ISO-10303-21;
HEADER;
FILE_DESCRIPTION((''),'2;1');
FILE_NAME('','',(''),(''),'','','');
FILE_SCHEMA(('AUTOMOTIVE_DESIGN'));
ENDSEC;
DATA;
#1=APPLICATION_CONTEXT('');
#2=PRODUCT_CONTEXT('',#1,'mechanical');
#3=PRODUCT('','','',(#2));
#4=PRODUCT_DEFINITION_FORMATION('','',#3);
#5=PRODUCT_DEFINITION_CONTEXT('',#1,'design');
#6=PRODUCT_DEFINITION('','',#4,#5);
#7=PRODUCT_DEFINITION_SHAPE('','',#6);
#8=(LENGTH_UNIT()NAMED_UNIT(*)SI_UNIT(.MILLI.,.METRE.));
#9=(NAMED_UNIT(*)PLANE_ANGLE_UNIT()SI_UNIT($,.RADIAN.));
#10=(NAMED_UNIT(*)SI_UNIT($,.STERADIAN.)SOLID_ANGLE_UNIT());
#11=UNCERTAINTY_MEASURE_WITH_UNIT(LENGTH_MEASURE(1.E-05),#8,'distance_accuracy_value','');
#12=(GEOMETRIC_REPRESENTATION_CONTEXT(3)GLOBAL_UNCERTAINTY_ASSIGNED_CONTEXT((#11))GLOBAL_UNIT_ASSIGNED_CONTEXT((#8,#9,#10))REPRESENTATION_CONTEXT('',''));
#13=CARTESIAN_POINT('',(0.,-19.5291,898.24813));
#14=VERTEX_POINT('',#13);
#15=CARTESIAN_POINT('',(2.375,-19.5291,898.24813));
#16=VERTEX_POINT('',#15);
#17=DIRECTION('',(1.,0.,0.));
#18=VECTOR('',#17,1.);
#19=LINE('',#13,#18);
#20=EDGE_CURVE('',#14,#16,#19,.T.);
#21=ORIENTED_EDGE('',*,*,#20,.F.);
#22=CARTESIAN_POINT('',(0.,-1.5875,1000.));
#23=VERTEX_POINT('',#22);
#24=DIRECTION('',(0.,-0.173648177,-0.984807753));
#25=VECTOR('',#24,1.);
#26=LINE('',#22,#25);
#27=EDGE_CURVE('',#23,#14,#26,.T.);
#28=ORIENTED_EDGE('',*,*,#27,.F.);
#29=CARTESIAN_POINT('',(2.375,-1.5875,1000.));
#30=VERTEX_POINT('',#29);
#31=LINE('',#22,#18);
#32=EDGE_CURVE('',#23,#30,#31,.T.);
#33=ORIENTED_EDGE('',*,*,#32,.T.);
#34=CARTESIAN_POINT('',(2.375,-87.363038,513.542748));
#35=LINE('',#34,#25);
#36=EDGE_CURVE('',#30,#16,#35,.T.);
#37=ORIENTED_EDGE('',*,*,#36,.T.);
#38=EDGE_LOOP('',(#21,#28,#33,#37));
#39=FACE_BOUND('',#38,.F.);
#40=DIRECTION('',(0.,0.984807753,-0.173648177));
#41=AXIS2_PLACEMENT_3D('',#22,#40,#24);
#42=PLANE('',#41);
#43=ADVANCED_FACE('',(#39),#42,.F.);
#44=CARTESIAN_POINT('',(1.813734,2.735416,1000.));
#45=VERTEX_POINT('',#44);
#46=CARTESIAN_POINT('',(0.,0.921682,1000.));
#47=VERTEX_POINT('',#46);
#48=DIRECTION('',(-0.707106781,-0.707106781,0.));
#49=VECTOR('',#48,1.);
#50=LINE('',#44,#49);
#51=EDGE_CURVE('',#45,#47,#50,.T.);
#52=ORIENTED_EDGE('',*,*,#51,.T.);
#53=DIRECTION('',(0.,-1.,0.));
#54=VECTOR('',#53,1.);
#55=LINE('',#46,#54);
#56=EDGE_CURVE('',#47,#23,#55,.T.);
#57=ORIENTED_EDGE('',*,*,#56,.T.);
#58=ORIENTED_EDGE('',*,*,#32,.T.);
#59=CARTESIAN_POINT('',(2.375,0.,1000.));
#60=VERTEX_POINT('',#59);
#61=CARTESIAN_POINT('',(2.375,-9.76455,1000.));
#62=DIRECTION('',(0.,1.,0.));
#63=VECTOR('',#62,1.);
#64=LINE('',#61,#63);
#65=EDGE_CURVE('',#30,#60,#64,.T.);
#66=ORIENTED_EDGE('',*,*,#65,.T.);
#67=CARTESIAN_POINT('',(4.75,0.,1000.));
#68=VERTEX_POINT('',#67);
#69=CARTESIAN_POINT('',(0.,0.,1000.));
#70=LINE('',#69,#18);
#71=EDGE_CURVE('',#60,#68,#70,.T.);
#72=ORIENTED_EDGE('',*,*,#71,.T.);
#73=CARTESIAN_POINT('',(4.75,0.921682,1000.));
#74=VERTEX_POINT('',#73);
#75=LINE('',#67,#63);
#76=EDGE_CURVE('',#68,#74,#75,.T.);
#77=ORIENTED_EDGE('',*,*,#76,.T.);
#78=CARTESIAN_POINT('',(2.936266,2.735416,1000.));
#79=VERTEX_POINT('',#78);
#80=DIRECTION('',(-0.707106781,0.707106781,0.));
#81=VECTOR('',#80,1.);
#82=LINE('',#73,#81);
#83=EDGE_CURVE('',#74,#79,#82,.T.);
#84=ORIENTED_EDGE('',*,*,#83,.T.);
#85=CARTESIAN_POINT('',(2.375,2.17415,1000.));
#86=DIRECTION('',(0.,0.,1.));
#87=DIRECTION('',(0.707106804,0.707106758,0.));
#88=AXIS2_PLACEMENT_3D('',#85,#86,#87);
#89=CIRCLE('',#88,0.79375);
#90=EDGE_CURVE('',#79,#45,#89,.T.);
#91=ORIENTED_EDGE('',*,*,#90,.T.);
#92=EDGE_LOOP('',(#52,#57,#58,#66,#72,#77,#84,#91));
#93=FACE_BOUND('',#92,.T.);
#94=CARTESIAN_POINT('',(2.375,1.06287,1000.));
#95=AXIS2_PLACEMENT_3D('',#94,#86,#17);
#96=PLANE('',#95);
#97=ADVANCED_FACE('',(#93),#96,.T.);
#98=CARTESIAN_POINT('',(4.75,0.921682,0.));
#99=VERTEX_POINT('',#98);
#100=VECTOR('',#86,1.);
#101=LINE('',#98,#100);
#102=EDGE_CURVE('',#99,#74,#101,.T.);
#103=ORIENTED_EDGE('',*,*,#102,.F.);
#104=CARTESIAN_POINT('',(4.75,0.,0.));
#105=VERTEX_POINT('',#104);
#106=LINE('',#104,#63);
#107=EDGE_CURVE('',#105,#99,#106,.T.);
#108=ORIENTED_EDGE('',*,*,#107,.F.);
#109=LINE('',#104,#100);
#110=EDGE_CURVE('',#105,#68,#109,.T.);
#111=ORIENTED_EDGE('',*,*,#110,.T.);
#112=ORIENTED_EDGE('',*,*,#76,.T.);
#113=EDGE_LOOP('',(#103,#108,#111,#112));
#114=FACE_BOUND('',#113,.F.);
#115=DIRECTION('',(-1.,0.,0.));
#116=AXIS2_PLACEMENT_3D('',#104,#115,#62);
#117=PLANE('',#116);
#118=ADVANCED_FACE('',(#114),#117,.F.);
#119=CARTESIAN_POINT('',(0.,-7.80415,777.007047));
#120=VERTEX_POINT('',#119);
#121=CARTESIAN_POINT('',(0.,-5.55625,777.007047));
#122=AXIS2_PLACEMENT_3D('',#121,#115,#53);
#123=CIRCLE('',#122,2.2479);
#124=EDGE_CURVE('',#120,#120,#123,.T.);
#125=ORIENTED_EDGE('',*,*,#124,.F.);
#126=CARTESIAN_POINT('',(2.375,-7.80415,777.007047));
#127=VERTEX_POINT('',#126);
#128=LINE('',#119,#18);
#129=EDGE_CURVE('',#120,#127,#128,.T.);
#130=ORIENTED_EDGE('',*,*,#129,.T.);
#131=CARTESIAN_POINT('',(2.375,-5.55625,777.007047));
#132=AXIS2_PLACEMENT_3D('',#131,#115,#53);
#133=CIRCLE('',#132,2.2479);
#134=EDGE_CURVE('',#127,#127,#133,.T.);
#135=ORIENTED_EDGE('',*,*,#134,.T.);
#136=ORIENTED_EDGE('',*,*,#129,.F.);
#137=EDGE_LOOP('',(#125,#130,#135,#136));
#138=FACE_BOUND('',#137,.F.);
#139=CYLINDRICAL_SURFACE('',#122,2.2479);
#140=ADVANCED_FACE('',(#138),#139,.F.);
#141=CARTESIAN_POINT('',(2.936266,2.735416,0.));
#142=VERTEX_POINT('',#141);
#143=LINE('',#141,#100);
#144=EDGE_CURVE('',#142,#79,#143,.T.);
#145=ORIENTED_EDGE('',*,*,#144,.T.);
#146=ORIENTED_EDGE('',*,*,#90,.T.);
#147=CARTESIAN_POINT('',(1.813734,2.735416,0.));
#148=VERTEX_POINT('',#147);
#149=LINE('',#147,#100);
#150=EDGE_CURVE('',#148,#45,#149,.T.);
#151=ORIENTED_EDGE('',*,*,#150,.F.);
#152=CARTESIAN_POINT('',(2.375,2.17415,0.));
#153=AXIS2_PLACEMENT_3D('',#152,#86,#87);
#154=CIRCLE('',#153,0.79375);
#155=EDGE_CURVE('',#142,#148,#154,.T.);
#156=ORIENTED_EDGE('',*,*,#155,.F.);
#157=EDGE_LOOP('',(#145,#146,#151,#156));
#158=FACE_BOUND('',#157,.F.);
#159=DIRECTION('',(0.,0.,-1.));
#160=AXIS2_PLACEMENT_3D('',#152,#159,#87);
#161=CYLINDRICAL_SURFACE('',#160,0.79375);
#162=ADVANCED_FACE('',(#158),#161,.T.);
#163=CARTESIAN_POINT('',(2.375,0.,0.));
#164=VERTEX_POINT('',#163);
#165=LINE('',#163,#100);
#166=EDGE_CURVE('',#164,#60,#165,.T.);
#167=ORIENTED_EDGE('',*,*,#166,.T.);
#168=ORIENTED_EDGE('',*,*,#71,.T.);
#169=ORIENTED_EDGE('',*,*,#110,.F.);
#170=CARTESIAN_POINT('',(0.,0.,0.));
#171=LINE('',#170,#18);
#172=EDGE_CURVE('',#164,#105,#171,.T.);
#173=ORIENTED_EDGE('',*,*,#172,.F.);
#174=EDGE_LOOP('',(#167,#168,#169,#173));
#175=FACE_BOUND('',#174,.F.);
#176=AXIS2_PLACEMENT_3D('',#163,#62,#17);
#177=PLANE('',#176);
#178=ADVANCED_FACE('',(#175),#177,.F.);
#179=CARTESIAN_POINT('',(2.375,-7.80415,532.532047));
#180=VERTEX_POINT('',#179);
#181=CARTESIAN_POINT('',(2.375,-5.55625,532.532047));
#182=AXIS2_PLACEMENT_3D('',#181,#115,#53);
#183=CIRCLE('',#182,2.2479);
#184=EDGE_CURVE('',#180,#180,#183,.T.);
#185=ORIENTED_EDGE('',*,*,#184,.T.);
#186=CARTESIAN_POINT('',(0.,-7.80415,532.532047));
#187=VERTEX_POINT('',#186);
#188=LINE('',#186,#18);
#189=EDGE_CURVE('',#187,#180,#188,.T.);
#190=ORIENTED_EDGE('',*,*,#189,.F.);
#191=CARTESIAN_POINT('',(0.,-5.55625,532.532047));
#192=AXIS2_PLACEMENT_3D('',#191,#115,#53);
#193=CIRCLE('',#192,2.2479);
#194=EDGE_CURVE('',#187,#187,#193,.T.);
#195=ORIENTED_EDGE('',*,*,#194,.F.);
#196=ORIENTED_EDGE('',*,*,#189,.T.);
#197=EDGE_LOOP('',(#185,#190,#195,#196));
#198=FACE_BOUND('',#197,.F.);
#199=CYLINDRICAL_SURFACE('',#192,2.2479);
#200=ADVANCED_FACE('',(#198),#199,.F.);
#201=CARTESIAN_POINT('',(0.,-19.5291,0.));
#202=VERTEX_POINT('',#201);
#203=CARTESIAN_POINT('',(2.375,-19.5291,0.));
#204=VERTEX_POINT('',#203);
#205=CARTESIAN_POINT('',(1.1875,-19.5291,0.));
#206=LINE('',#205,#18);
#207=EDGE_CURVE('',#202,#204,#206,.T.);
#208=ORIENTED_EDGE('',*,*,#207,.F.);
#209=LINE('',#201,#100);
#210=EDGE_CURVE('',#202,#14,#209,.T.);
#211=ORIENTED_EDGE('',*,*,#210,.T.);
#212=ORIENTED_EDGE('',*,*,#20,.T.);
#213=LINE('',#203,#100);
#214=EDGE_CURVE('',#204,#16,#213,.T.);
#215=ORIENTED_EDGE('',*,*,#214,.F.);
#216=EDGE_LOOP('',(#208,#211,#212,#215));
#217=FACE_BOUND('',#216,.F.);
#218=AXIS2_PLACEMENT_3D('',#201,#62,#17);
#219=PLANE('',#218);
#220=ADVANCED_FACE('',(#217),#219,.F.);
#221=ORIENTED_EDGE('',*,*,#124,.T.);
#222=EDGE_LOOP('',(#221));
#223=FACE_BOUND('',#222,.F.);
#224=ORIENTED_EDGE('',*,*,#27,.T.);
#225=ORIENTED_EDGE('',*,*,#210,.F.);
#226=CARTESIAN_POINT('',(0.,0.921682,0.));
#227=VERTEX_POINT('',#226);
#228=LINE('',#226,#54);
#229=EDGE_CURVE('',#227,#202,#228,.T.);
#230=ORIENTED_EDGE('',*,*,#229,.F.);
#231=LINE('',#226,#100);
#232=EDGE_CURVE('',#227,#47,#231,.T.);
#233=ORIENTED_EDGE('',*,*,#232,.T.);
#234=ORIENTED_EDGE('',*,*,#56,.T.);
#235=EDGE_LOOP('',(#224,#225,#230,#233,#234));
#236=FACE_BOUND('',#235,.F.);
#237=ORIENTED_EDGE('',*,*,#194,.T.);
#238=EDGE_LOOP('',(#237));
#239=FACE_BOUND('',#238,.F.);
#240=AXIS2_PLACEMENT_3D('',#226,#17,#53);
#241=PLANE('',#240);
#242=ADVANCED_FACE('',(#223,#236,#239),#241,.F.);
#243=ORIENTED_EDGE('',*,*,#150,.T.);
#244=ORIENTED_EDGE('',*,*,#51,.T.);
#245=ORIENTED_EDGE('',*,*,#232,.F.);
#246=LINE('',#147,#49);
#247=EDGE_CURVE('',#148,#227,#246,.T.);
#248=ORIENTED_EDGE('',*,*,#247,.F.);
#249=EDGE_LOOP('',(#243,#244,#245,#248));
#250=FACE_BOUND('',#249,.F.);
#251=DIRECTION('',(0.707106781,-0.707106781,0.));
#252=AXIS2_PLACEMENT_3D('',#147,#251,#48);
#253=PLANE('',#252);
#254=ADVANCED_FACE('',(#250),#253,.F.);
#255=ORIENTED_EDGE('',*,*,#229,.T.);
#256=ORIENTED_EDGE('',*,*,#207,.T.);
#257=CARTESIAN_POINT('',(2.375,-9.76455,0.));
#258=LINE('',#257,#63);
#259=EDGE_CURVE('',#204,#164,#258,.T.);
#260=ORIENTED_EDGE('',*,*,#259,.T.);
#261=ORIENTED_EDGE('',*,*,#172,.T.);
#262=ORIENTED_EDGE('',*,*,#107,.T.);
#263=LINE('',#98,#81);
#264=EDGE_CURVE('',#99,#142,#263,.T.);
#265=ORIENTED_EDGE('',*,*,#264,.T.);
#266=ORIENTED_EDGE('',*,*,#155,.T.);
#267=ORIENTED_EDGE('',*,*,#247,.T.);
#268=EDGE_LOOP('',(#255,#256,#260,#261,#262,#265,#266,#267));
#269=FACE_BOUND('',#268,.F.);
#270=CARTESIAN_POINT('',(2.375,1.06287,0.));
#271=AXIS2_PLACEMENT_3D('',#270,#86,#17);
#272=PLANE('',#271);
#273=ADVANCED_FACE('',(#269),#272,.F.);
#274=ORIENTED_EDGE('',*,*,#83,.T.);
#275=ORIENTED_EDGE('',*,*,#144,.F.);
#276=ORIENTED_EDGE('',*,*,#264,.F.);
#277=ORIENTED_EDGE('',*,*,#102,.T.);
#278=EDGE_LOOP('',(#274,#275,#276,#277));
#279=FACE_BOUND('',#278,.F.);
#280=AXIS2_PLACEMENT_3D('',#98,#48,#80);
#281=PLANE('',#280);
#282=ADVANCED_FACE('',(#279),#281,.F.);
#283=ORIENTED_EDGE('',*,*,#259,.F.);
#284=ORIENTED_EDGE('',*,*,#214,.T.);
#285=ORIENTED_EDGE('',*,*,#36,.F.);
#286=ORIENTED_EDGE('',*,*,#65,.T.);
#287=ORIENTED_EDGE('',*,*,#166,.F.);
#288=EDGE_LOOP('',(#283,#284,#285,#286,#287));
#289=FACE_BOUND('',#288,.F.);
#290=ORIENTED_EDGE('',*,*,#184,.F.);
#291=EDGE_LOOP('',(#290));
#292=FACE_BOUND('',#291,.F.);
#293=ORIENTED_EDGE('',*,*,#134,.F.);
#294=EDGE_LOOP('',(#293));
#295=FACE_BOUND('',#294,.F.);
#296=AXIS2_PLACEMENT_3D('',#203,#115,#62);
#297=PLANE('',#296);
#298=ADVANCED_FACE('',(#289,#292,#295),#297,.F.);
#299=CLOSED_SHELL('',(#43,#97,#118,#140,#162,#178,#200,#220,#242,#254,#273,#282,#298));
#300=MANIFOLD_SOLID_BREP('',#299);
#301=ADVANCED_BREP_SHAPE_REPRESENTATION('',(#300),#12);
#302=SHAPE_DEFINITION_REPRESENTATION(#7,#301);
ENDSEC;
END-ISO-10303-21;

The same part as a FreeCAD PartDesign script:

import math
import FreeCAD as App
import Part
import Sketcher
from FreeCAD import Vector
Q = App.Units.Quantity

doc = App.newDocument("Part")
body = doc.addObject("PartDesign::Body", "Body")

# Sketch on XY plane
sketch1 = body.newObject("Sketcher::SketchObject", "Sketch")
sketch1.AttachmentSupport = (doc.getObject("XY_Plane"), [""])
sketch1.MapMode = "FlatFace"
sketch1.addGeometry([
    Part.LineSegment(Vector(0, 0.9, 0), Vector(0, -19.5, 0)),  # 0
    Part.LineSegment(Vector(0, -19.5, 0), Vector(2.4, -19.5, 0)),  # 1
    Part.LineSegment(Vector(2.4, -19.5, 0), Vector(2.4, 0, 0)),  # 2
    Part.LineSegment(Vector(2.4, 0, 0), Vector(4.8, 0, 0)),  # 3
    Part.LineSegment(Vector(4.8, 0, 0), Vector(4.8, 0.9, 0)),  # 4
    Part.LineSegment(Vector(4.8, 0.9, 0), Vector(2.9, 2.7, 0)),  # 5
    Part.ArcOfCircle(Part.Circle(Vector(2.4, 2.2, 0), Vector(0, 0, 1), 0.8), math.radians(45), math.radians(135)),  # 6
    Part.LineSegment(Vector(1.8, 2.7, 0), Vector(0, 0.9, 0)),  # 7
], False)
sketch1.addConstraint([
    Sketcher.Constraint("Coincident", 0, 2, 1, 1),
    Sketcher.Constraint("Coincident", 1, 2, 2, 1),
    Sketcher.Constraint("Coincident", 2, 2, 3, 1),
    Sketcher.Constraint("Coincident", 3, 2, 4, 1),
    Sketcher.Constraint("Coincident", 4, 2, 5, 1),
    Sketcher.Constraint("Tangent", 5, 2, 6, 1),
    Sketcher.Constraint("Tangent", 6, 2, 7, 1),
    Sketcher.Constraint("Coincident", 7, 2, 0, 1),
    Sketcher.Constraint("Vertical", 0),
    Sketcher.Constraint("Horizontal", 1),
    Sketcher.Constraint("Vertical", 2),
    Sketcher.Constraint("Horizontal", 3),
    Sketcher.Constraint("Vertical", 4),
    Sketcher.Constraint("PointOnObject", 0, 2, -2),
    Sketcher.Constraint("PointOnObject", 2, 2, -1),
    Sketcher.Constraint("Perpendicular", 5, 7),
    Sketcher.Constraint("Horizontal", 5, 2, 6, 2),
    Sketcher.Constraint("Horizontal", 4, 2, 7, 2),
    Sketcher.Constraint("Vertical", 6, 3, 1, 2),
    Sketcher.Constraint("Radius", 6, Q("0.03125 in")),
    Sketcher.Constraint("DistanceX", 1, 1, 1, 2, 2.375),
    Sketcher.Constraint("DistanceY", 2, 1, 2, 2, 19.5291),
    Sketcher.Constraint("DistanceY", 0, 2, 0, 1, 20.450782),
])
pad1 = body.newObject("PartDesign::Pad", "Pad")
pad1.Profile = sketch1
pad1.Length = 1000

# Sketch on YZ plane
sketch2 = body.newObject("Sketcher::SketchObject", "Sketch001")
sketch2.AttachmentSupport = (doc.getObject("YZ_Plane"), [""])
sketch2.MapMode = "FlatFace"
sketch2.addGeometry([
    Part.LineSegment(Vector(-19.5, 898.2, 0), Vector(-19.5, 1000, 0)),  # 0
    Part.LineSegment(Vector(-19.5, 1000, 0), Vector(-1.6, 1000, 0)),  # 1
    Part.LineSegment(Vector(-1.6, 1000, 0), Vector(-19.5, 898.2, 0)),  # 2
    Part.Circle(Vector(-5.6, 777, 0), Vector(0, 0, 1), 2.2),  # 3
    Part.Circle(Vector(-5.6, 532.5, 0), Vector(0, 0, 1), 2.2),  # 4
], False)
sketch2.addConstraint([
    Sketcher.Constraint("Coincident", 0, 2, 1, 1),
    Sketcher.Constraint("Coincident", 1, 2, 2, 1),
    Sketcher.Constraint("Coincident", 2, 2, 0, 1),
    Sketcher.Constraint("Vertical", 0),
    Sketcher.Constraint("Horizontal", 1),
    Sketcher.Constraint("Equal", 3, 4),
    Sketcher.Constraint("Vertical", 3, 3, 4, 3),
    Sketcher.Constraint("Diameter", 3, Q("0.177 in")),
    Sketcher.Constraint("Angle", 2, Q("-100 deg")),
    Sketcher.Constraint("DistanceX", 3, 3, -1, 1, Q("0.21875 in")),
    Sketcher.Constraint("DistanceX", 1, 2, -1, 1, Q("0.0625 in")),
    Sketcher.Constraint("DistanceY", 4, 3, 3, 3, Q("9.625 in")),
    Sketcher.Constraint("DistanceX", 1, 1, 1, 2, 17.9416),
    Sketcher.Constraint("DistanceY", -1, 1, 0, 2, 1000.0),
    Sketcher.Constraint("DistanceY", -1, 1, 3, 3, 777.007047),
])
pocket1 = body.newObject("PartDesign::Pocket", "Pocket")
pocket1.Profile = sketch2
pocket1.Type = "ThroughAll"
pocket1.Reversed = True

doc.recompute()
